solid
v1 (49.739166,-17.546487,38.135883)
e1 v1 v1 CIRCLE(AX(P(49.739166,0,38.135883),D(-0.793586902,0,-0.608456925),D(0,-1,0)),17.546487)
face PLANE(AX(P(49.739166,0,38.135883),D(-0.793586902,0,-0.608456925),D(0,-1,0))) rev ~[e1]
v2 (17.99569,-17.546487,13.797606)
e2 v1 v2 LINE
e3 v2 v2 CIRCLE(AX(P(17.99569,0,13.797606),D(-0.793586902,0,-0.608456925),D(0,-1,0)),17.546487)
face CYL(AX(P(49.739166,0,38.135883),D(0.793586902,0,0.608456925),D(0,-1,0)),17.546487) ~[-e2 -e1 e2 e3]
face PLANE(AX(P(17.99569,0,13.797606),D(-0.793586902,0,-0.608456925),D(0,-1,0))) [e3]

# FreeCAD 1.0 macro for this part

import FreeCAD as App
import Part
import Sketcher
Q = App.Units.Quantity

doc = App.newDocument("Part")
body = doc.addObject("PartDesign::Body", "Body")

# Sketch on an angled plane
sketch1 = doc.addObject("Sketcher::SketchObject", "Sketch")
body.addObject(sketch1)
sketch1.Placement = App.Placement(App.Vector(49.739166, 0, 38.135883), App.Rotation(App.Vector(0, -1, 0), App.Vector(-0.608456925, 0, 0.793586902), App.Vector(-0.793586902, 0, -0.608456925), "ZXY"))
sketch1.addGeometry(Part.Circle(App.Vector(0, 0, 0), App.Vector(0, 0, 1), 17.546487), False)
sketch1.addConstraint(Sketcher.Constraint("Coincident", 0, 3, -1, 1))
sketch1.addConstraint(Sketcher.Constraint("Diameter", 0, Q("35.092974 mm")))
pad1 = doc.addObject("PartDesign::Pad", "Pad")
body.addObject(pad1)
pad1.Profile = sketch1
pad1.Length = 40

doc.recompute()
